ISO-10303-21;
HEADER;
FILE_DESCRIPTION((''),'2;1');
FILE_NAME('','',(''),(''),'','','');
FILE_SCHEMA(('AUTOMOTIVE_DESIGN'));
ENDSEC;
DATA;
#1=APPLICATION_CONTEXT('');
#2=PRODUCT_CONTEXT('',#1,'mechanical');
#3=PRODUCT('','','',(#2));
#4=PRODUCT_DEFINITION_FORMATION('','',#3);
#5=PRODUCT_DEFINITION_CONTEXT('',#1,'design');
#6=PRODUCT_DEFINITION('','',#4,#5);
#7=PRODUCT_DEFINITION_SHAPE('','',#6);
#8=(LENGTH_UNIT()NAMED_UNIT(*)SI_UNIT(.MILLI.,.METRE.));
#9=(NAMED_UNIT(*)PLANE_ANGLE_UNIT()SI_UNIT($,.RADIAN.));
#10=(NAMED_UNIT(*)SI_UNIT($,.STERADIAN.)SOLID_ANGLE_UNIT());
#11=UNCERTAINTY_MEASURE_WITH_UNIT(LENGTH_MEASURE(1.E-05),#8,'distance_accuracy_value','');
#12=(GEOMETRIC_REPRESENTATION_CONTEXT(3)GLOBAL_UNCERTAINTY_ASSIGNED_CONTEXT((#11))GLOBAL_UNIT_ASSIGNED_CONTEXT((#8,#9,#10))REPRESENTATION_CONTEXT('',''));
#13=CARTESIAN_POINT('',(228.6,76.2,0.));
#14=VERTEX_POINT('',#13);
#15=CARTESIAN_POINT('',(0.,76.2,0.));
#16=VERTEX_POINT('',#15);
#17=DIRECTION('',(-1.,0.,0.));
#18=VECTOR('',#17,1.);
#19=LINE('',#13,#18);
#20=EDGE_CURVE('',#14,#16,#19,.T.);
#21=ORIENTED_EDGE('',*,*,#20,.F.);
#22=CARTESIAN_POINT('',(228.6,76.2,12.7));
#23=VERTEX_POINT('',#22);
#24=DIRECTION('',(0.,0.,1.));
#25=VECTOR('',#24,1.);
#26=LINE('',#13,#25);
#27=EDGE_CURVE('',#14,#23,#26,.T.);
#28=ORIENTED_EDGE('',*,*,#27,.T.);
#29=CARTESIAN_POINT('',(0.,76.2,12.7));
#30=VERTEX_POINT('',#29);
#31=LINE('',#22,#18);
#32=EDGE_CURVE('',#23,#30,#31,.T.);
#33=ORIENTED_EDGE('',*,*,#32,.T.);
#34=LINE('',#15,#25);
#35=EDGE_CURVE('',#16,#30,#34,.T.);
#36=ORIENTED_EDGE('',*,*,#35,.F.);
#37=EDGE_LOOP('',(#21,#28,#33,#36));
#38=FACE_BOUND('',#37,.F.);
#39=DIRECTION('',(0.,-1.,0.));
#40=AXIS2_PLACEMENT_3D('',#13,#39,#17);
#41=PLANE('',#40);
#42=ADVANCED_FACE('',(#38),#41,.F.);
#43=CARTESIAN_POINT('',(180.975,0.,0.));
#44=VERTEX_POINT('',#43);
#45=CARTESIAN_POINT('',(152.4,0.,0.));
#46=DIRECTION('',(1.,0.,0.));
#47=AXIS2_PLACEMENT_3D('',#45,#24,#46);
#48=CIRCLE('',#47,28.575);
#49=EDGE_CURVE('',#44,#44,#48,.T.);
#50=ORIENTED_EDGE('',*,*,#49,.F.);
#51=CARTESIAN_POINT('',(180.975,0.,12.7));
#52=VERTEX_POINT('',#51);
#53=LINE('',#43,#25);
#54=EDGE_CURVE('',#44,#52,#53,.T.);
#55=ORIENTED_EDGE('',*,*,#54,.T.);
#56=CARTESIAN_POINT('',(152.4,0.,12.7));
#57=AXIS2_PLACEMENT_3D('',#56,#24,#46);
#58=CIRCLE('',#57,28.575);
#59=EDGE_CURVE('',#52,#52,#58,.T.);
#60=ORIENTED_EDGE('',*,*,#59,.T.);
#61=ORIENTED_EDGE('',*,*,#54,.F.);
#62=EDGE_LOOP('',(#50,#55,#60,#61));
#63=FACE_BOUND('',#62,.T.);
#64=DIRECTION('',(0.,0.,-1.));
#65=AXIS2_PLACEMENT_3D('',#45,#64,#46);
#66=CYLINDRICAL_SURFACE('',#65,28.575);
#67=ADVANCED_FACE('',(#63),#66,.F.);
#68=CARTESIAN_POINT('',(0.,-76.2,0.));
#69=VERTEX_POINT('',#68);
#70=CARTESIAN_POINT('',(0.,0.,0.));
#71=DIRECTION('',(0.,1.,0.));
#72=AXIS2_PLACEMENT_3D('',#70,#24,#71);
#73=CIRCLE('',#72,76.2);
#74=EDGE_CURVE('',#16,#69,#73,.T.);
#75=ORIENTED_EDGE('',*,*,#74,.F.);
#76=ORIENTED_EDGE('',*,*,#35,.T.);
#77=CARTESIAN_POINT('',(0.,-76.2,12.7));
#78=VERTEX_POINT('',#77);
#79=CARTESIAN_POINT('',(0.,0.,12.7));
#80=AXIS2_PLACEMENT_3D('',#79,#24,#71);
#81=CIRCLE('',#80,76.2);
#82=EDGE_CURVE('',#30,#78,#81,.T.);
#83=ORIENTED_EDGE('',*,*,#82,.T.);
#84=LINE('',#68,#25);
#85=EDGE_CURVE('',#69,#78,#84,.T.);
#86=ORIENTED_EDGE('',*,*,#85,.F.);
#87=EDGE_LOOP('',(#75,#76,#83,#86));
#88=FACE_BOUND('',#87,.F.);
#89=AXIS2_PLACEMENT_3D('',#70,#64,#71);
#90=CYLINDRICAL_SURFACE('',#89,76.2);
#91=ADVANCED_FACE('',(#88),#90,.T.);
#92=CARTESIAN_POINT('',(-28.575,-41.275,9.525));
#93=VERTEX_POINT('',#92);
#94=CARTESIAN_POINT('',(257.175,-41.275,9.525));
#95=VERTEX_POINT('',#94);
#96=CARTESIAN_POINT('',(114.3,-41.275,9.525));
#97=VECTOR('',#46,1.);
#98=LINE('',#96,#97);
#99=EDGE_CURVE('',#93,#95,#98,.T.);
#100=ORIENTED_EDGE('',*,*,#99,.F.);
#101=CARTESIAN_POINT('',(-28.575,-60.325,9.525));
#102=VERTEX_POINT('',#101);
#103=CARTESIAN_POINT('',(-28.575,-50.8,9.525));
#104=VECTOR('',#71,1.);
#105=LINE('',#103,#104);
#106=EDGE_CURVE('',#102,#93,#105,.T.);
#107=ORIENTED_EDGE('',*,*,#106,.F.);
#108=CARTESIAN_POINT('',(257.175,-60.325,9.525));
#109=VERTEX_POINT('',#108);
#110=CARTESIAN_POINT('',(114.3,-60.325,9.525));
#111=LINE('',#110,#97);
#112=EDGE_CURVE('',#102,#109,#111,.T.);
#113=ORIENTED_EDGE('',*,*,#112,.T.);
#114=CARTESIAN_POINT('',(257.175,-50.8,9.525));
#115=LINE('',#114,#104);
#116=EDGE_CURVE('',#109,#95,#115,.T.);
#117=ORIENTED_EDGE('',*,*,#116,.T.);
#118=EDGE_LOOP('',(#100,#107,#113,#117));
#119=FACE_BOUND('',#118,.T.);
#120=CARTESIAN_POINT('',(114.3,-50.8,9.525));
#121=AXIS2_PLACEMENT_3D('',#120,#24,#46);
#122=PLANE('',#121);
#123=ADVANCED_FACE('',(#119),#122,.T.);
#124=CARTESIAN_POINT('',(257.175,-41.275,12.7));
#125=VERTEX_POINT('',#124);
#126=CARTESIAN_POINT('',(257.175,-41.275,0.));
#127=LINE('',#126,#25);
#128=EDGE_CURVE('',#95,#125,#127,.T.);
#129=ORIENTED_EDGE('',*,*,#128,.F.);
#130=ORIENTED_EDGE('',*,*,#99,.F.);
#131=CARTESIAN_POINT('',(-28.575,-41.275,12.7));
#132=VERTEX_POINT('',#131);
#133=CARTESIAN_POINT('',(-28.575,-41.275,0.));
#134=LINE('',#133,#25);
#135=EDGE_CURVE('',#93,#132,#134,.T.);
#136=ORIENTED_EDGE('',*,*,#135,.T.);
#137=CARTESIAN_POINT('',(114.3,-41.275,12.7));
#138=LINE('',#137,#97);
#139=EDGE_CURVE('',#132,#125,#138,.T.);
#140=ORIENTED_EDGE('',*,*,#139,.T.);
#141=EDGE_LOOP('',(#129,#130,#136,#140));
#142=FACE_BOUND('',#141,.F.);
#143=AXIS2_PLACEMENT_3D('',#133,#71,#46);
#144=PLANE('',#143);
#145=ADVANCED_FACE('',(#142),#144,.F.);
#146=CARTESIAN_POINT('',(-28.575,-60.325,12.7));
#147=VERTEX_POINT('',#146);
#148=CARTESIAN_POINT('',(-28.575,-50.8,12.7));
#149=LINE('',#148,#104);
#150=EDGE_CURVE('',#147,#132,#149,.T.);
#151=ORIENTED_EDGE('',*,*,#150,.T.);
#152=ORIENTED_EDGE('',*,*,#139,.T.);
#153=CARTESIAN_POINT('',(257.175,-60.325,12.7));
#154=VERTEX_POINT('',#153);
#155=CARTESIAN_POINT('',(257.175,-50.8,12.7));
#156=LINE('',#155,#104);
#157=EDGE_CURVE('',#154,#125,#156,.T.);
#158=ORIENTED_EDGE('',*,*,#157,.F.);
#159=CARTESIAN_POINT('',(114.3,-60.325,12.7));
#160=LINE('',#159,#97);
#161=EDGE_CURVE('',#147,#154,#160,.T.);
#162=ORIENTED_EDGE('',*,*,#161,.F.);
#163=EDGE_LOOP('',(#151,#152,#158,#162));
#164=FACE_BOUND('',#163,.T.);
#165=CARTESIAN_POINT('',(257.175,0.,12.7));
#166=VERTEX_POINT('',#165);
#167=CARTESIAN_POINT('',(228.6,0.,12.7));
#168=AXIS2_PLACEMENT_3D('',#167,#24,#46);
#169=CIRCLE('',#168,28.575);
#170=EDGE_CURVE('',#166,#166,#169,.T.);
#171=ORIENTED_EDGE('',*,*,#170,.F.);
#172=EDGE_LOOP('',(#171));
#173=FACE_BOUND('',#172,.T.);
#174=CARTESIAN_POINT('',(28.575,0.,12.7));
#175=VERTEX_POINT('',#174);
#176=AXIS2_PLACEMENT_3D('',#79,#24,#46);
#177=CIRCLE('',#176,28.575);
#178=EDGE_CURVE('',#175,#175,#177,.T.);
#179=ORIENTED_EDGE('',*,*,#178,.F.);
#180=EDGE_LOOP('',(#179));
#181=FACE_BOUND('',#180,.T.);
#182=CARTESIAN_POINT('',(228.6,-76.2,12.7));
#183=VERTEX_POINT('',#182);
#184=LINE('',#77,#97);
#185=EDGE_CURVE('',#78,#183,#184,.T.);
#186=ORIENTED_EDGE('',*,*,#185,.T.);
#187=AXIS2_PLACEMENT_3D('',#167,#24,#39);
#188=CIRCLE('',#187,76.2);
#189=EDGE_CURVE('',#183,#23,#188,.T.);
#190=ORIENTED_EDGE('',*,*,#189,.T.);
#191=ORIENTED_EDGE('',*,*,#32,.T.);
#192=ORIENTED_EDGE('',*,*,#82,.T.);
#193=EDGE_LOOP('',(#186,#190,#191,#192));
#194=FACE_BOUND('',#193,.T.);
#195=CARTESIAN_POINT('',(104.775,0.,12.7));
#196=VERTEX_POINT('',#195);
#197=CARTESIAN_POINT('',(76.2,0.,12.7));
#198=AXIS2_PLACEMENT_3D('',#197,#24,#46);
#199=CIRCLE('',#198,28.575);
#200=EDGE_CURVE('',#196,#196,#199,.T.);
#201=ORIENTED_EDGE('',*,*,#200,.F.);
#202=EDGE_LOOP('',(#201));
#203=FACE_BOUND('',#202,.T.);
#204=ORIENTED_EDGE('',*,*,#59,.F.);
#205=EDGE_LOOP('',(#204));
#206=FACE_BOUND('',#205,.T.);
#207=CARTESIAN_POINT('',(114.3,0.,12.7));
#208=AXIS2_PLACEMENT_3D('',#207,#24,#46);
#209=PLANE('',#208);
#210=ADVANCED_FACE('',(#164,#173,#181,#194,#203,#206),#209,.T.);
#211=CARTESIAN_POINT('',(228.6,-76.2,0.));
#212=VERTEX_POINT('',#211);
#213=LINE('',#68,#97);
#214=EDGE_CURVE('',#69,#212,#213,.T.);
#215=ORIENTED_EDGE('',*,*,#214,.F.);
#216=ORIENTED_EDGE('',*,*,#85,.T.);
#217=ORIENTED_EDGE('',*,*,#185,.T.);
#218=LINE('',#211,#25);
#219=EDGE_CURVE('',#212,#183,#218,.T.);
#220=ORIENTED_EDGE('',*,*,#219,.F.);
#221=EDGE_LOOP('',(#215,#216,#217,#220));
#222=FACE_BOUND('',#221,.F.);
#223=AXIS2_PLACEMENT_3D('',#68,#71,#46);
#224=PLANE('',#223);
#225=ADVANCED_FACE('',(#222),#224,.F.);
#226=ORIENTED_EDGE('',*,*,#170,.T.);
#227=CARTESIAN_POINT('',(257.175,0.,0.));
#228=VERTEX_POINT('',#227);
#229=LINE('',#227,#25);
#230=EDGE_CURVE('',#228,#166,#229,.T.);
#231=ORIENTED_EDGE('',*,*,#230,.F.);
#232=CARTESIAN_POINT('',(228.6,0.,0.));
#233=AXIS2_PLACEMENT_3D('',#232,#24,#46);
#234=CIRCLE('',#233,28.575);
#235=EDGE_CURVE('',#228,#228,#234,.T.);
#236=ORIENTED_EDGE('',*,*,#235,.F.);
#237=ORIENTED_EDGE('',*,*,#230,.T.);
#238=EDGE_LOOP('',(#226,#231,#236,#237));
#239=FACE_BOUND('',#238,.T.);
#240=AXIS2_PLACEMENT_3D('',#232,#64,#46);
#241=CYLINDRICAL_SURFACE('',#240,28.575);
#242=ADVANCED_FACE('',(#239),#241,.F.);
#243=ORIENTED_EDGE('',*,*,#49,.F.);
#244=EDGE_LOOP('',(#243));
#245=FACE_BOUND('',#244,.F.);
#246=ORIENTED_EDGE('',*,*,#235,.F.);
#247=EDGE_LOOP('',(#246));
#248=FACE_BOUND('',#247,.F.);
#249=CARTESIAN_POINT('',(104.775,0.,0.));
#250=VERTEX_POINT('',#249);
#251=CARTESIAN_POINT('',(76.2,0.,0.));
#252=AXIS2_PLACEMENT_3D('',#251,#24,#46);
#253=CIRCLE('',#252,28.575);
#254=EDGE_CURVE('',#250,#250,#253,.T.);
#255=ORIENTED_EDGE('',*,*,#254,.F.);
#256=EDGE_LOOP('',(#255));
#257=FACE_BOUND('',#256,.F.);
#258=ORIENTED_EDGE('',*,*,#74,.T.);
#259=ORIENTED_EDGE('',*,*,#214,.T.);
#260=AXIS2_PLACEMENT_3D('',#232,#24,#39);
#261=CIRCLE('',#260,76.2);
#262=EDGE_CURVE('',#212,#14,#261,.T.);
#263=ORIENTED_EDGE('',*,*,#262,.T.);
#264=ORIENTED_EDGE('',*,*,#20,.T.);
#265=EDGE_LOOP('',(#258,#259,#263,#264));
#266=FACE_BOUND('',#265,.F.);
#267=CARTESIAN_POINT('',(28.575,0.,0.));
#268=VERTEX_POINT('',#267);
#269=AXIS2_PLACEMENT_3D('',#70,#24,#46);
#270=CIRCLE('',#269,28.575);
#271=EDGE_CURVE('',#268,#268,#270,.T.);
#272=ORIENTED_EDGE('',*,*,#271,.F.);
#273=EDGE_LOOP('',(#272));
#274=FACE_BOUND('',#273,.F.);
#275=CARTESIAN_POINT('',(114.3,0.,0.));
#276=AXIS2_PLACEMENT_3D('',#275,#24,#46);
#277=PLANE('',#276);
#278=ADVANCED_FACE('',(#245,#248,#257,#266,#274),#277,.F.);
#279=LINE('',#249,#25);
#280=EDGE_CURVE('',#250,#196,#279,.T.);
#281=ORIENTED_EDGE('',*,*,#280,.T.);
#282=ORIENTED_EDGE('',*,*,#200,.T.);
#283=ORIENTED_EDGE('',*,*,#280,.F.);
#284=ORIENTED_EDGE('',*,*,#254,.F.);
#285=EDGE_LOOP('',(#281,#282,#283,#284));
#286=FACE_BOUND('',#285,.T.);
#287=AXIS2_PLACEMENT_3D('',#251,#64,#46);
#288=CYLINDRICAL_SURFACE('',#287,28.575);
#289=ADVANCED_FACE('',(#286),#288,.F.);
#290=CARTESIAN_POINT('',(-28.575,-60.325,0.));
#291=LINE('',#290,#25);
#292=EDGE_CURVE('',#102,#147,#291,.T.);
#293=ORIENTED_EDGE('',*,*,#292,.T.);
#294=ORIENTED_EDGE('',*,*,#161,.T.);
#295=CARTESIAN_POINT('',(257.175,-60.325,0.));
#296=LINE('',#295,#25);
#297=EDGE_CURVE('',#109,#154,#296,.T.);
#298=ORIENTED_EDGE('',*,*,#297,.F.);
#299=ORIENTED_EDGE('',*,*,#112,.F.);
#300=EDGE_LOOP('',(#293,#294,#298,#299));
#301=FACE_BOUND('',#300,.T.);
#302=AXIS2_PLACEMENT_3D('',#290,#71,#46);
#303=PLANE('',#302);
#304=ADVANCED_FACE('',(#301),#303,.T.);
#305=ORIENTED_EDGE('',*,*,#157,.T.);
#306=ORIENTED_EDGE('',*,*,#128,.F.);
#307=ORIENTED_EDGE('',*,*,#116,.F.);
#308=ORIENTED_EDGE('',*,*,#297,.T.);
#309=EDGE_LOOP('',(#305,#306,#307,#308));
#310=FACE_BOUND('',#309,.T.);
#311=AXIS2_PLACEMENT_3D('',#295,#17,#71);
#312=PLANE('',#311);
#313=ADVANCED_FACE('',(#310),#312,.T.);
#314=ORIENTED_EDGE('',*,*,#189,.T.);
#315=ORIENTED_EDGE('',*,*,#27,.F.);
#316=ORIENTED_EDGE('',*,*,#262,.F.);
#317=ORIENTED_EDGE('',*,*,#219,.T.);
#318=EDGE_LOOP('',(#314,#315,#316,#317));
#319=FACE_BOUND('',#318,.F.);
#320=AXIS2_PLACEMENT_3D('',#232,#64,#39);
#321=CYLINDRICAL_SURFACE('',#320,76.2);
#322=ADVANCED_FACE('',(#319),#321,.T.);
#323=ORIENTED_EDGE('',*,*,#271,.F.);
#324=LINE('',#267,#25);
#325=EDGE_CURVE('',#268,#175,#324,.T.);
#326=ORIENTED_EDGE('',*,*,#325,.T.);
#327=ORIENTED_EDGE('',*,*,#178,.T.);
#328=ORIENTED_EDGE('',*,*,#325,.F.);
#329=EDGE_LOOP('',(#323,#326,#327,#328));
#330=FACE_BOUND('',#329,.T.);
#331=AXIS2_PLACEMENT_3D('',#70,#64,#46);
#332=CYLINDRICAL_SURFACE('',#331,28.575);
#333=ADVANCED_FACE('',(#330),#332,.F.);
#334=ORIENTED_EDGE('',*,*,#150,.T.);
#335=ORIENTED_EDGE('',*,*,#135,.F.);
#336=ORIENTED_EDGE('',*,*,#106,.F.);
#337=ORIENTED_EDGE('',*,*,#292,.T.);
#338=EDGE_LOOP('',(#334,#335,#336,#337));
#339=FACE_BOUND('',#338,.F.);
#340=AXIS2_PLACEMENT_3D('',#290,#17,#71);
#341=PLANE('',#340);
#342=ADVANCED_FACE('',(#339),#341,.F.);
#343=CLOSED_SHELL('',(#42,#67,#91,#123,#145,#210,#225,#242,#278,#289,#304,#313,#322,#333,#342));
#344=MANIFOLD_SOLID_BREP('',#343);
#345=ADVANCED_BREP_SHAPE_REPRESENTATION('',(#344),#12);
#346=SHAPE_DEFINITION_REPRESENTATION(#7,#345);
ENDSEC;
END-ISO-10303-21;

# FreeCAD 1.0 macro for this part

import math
import FreeCAD as App
import Part
import Sketcher

V = App.Vector
Q = App.Units.Quantity

doc = App.newDocument("Part")
body = doc.addObject("PartDesign::Body", "Body")

sketch1 = body.newObject("Sketcher::SketchObject", "Sketch")
sketch1.AttachmentSupport = (doc.getObject("XY_Plane"), [""])
sketch1.MapMode = "FlatFace"
sketch1.addGeometry([
    Part.LineSegment(V(-28.575, -41.275, 0), V(-28.575, -60.325, 0)),
    Part.LineSegment(V(-28.575, -60.325, 0), V(257.175, -60.325, 0)),
    Part.LineSegment(V(257.175, -60.325, 0), V(257.175, -41.275, 0)),
    Part.LineSegment(V(257.175, -41.275, 0), V(-28.575, -41.275, 0)),
], False)
sketch1.addConstraint([
    Sketcher.Constraint("Coincident", 0, 2, 1, 1),
    Sketcher.Constraint("Coincident", 1, 2, 2, 1),
    Sketcher.Constraint("Coincident", 2, 2, 3, 1),
    Sketcher.Constraint("Coincident", 3, 2, 0, 1),
    Sketcher.Constraint("Vertical", 0),
    Sketcher.Constraint("Horizontal", 1),
    Sketcher.Constraint("Vertical", 2),
    Sketcher.Constraint("Horizontal", 3),
    Sketcher.Constraint("DistanceX", 1, 1, 1, 2, Q("11.25 in")),
    Sketcher.Constraint("DistanceY", 0, 2, 0, 1, Q("0.75 in")),
    Sketcher.Constraint("DistanceX", 0, 2, -1, 1, Q("1.125 in")),
    Sketcher.Constraint("DistanceY", 0, 2, -1, 1, Q("2.375 in")),
])
pad1 = body.newObject("PartDesign::Pad", "Pad")
pad1.Profile = sketch1
pad1.Length = Q("0.375 in")

sketch2 = body.newObject("Sketcher::SketchObject", "Sketch001")
sketch2.AttachmentSupport = (doc.getObject("XY_Plane"), [""])
sketch2.MapMode = "FlatFace"
sketch2.addGeometry([
    Part.LineSegment(V(228.6, 76.2, 0), V(0, 76.2, 0)),
    Part.ArcOfCircle(Part.Circle(V(0, 0, 0), V(0, 0, 1), 76.2), math.radians(90), math.radians(270)),
    Part.LineSegment(V(0, -76.2, 0), V(228.6, -76.2, 0)),
    Part.ArcOfCircle(Part.Circle(V(228.6, 0, 0), V(0, 0, 1), 76.2), math.radians(-90), math.radians(90)),
    Part.LineSegment(V(257.175, -60.325, 0), V(-28.575, -60.325, 0)),
    Part.LineSegment(V(-28.575, -60.325, 0), V(-28.575, -41.275, 0)),
    Part.LineSegment(V(-28.575, -41.275, 0), V(257.175, -41.275, 0)),
    Part.LineSegment(V(257.175, -41.275, 0), V(257.175, -60.325, 0)),
    Part.Circle(V(0, 0, 0), V(0, 0, 1), 28.575),
    Part.Circle(V(76.2, 0, 0), V(0, 0, 1), 28.575),
    Part.Circle(V(152.4, 0, 0), V(0, 0, 1), 28.575),
    Part.Circle(V(228.6, 0, 0), V(0, 0, 1), 28.575),
], False)
sketch2.addConstraint([
    Sketcher.Constraint("Tangent", 0, 2, 1, 1),
    Sketcher.Constraint("Tangent", 1, 2, 2, 1),
    Sketcher.Constraint("Tangent", 2, 2, 3, 1),
    Sketcher.Constraint("Tangent", 3, 2, 0, 1),
    Sketcher.Constraint("Coincident", 4, 2, 5, 1),
    Sketcher.Constraint("Coincident", 5, 2, 6, 1),
    Sketcher.Constraint("Coincident", 6, 2, 7, 1),
    Sketcher.Constraint("Coincident", 7, 2, 4, 1),
    Sketcher.Constraint("Horizontal", 0),
    Sketcher.Constraint("Horizontal", 2),
    Sketcher.Constraint("Horizontal", 4),
    Sketcher.Constraint("Vertical", 5),
    Sketcher.Constraint("Horizontal", 6),
    Sketcher.Constraint("Vertical", 7),
    Sketcher.Constraint("Coincident", 1, 3, -1, 1),
    Sketcher.Constraint("Coincident", 8, 3, -1, 1),
    Sketcher.Constraint("Coincident", 11, 3, 3, 3),
    Sketcher.Constraint("Equal", 8, 9),
    Sketcher.Constraint("Equal", 9, 10),
    Sketcher.Constraint("Equal", 10, 11),
    Sketcher.Constraint("PointOnObject", 9, 3, -1),
    Sketcher.Constraint("PointOnObject", 10, 3, -1),
    Sketcher.Constraint("Radius", 1, Q("3 in")),
    Sketcher.Constraint("Diameter", 8, Q("2.25 in")),
    Sketcher.Constraint("DistanceX", 0, 2, 0, 1, Q("9 in")),
    Sketcher.Constraint("DistanceX", -1, 1, 9, 3, Q("3 in")),
    Sketcher.Constraint("DistanceX", -1, 1, 10, 3, Q("6 in")),
    Sketcher.Constraint("DistanceX", 4, 2, 4, 1, Q("11.25 in")),
    Sketcher.Constraint("DistanceY", 5, 1, 5, 2, Q("0.75 in")),
    Sketcher.Constraint("DistanceX", 4, 2, -1, 1, Q("1.125 in")),
    Sketcher.Constraint("DistanceY", 4, 2, -1, 1, Q("2.375 in")),
])
pad2 = body.newObject("PartDesign::Pad", "Pad001")
pad2.Profile = sketch2
pad2.Length = Q("0.5 in")

doc.recompute()
